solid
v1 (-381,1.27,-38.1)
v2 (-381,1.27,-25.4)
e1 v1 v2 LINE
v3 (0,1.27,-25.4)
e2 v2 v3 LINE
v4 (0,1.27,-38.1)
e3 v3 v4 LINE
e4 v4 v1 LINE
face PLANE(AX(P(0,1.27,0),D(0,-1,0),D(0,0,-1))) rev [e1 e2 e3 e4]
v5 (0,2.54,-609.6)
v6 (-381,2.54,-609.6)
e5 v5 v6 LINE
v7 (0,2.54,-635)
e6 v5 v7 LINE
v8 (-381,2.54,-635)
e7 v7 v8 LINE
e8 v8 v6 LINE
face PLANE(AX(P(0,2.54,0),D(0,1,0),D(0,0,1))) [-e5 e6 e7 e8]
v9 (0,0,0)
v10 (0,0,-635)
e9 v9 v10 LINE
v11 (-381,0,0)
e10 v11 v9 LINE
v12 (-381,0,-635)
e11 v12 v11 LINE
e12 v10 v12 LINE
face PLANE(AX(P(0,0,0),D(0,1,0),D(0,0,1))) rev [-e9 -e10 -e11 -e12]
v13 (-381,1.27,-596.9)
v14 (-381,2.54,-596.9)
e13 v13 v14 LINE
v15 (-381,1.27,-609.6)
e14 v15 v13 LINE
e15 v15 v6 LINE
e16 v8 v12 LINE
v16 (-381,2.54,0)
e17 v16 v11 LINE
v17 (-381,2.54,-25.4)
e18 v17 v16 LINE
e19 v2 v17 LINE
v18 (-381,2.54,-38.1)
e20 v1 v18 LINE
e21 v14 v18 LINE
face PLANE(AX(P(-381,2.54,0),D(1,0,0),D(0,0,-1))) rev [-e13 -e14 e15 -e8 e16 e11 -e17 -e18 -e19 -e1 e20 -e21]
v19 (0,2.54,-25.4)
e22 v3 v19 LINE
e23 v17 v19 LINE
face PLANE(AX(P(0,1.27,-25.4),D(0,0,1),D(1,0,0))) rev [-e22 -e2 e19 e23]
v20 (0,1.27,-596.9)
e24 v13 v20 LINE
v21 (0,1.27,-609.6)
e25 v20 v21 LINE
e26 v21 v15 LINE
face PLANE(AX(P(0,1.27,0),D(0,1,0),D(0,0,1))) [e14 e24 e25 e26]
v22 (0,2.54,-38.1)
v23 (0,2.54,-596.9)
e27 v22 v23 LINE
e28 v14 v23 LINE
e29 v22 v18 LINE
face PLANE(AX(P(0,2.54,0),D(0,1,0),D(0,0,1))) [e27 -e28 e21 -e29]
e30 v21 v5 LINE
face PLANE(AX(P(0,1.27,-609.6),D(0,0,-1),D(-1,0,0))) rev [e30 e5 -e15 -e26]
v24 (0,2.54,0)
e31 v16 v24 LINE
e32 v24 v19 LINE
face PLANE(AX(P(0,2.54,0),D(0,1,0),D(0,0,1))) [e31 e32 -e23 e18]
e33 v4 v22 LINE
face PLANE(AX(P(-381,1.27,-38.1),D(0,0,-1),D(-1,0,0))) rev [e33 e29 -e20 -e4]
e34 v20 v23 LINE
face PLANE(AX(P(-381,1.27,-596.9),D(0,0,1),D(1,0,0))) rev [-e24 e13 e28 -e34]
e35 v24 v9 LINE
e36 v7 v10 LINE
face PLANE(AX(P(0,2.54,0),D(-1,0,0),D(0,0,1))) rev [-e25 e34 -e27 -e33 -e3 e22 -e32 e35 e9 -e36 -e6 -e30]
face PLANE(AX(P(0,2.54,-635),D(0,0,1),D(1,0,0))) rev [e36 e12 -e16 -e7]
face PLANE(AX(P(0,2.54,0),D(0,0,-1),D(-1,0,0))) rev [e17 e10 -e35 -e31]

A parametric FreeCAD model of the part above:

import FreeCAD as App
import Part
import Sketcher
from FreeCAD import Vector
Q = App.Units.Quantity


def add_polygon(sketch, points):
    """Adds a closed chain of lines whose ends are joined by coincident constraints."""
    first, n = sketch.GeometryCount, len(points)
    for a, b in zip(points, points[1:] + points[:1]):
        sketch.addGeometry(Part.LineSegment(App.Vector(*a, 0), App.Vector(*b, 0)), False)
    for i in range(n):
        sketch.addConstraint(Sketcher.Constraint("Coincident", first + i, 2, first + (i + 1) % n, 1))

doc = App.newDocument("Part")
params = doc.addObject("Spreadsheet::Sheet", "Params")
for row, (alias, value) in enumerate([
    ("sketch1_width", "15 in"),
    ("sketch1_height", "25 in"),
    ("pad1_length", "0.1 in"),
    ("sketch2_width", "15 in"),
    ("sketch2_height", "0.5 in"),
    ("pocket1_length", "0.05 in"),
], start=1):
    params.set(f"A{row}", alias)
    params.set(f"B{row}", "=" + value)
    params.setAlias(f"B{row}", alias)

body = doc.addObject("PartDesign::Body", "Body")

# Sketch on XZ plane
sketch1 = body.newObject("Sketcher::SketchObject", "Sketch")
sketch1.AttachmentSupport = (doc.getObject("XZ_Plane"), [""])
sketch1.MapMode = "FlatFace"
add_polygon(sketch1, [(-381, -635), (-381, 0), (0, 0), (0, -635)])  # lines 0-3
sketch1.addConstraint([
    Sketcher.Constraint("Vertical", 0),
    Sketcher.Constraint("Horizontal", 1),
    Sketcher.Constraint("Vertical", 2),
    Sketcher.Constraint("Horizontal", 3),
    Sketcher.Constraint("Coincident", 1, 2, -1, 1),
    Sketcher.Constraint("DistanceX", 1, 1, 1, 2, Q("15 in")),
    Sketcher.Constraint("DistanceY", 0, 1, 0, 2, Q("25 in")),
])
sketch1.setExpression("Constraints[9]", "Params.sketch1_width")
sketch1.setExpression("Constraints[10]", "Params.sketch1_height")
pad1 = body.newObject("PartDesign::Pad", "Pad")
pad1.Profile = sketch1
pad1.setExpression("Length", "Params.pad1_length")
pad1.Reversed = True

# Sketch on XZ plane
sketch2 = body.newObject("Sketcher::SketchObject", "Sketch001")
sketch2.AttachmentSupport = (doc.getObject("XZ_Plane"), [""])
sketch2.MapMode = "FlatFace"
sketch2.AttachmentOffset = App.Placement(Vector(0, 0, -0.1 * 25.4), App.Rotation())
add_polygon(sketch2, [(-381, -609.6), (-381, -596.9), (0, -596.9), (0, -609.6)])  # lines 0-3
add_polygon(sketch2, [(-381, -38.1), (-381, -25.4), (0, -25.4), (0, -38.1)])  # lines 4-7
sketch2.addConstraint([
    Sketcher.Constraint("Vertical", 0),
    Sketcher.Constraint("Horizontal", 1),
    Sketcher.Constraint("Vertical", 2),
    Sketcher.Constraint("Horizontal", 3),
    Sketcher.Constraint("Vertical", 4),
    Sketcher.Constraint("Horizontal", 5),
    Sketcher.Constraint("Vertical", 6),
    Sketcher.Constraint("Horizontal", 7),
    Sketcher.Constraint("PointOnObject", 1, 2, -2),
    Sketcher.Constraint("PointOnObject", 5, 2, -2),
    Sketcher.Constraint("Vertical", 3, 2, 4, 2),
    Sketcher.Constraint("Equal", 2, 4),
    Sketcher.Constraint("DistanceX", 1, 1, 1, 2, Q("15 in")),
    Sketcher.Constraint("DistanceY", 0, 1, 0, 2, Q("0.5 in")),
    Sketcher.Constraint("DistanceY", 2, 2, -1, 1, Q("24 in")),
    Sketcher.Constraint("DistanceY", 4, 2, -1, 1, Q("1 in")),
])
sketch2.setExpression("Constraints[20]", "Params.sketch2_width")
sketch2.setExpression("Constraints[21]", "Params.sketch2_height")
pocket1 = body.newObject("PartDesign::Pocket", "Pocket")
pocket1.Profile = sketch2
pocket1.setExpression("Length", "Params.pocket1_length")
pocket1.Reversed = True

doc.recompute()
